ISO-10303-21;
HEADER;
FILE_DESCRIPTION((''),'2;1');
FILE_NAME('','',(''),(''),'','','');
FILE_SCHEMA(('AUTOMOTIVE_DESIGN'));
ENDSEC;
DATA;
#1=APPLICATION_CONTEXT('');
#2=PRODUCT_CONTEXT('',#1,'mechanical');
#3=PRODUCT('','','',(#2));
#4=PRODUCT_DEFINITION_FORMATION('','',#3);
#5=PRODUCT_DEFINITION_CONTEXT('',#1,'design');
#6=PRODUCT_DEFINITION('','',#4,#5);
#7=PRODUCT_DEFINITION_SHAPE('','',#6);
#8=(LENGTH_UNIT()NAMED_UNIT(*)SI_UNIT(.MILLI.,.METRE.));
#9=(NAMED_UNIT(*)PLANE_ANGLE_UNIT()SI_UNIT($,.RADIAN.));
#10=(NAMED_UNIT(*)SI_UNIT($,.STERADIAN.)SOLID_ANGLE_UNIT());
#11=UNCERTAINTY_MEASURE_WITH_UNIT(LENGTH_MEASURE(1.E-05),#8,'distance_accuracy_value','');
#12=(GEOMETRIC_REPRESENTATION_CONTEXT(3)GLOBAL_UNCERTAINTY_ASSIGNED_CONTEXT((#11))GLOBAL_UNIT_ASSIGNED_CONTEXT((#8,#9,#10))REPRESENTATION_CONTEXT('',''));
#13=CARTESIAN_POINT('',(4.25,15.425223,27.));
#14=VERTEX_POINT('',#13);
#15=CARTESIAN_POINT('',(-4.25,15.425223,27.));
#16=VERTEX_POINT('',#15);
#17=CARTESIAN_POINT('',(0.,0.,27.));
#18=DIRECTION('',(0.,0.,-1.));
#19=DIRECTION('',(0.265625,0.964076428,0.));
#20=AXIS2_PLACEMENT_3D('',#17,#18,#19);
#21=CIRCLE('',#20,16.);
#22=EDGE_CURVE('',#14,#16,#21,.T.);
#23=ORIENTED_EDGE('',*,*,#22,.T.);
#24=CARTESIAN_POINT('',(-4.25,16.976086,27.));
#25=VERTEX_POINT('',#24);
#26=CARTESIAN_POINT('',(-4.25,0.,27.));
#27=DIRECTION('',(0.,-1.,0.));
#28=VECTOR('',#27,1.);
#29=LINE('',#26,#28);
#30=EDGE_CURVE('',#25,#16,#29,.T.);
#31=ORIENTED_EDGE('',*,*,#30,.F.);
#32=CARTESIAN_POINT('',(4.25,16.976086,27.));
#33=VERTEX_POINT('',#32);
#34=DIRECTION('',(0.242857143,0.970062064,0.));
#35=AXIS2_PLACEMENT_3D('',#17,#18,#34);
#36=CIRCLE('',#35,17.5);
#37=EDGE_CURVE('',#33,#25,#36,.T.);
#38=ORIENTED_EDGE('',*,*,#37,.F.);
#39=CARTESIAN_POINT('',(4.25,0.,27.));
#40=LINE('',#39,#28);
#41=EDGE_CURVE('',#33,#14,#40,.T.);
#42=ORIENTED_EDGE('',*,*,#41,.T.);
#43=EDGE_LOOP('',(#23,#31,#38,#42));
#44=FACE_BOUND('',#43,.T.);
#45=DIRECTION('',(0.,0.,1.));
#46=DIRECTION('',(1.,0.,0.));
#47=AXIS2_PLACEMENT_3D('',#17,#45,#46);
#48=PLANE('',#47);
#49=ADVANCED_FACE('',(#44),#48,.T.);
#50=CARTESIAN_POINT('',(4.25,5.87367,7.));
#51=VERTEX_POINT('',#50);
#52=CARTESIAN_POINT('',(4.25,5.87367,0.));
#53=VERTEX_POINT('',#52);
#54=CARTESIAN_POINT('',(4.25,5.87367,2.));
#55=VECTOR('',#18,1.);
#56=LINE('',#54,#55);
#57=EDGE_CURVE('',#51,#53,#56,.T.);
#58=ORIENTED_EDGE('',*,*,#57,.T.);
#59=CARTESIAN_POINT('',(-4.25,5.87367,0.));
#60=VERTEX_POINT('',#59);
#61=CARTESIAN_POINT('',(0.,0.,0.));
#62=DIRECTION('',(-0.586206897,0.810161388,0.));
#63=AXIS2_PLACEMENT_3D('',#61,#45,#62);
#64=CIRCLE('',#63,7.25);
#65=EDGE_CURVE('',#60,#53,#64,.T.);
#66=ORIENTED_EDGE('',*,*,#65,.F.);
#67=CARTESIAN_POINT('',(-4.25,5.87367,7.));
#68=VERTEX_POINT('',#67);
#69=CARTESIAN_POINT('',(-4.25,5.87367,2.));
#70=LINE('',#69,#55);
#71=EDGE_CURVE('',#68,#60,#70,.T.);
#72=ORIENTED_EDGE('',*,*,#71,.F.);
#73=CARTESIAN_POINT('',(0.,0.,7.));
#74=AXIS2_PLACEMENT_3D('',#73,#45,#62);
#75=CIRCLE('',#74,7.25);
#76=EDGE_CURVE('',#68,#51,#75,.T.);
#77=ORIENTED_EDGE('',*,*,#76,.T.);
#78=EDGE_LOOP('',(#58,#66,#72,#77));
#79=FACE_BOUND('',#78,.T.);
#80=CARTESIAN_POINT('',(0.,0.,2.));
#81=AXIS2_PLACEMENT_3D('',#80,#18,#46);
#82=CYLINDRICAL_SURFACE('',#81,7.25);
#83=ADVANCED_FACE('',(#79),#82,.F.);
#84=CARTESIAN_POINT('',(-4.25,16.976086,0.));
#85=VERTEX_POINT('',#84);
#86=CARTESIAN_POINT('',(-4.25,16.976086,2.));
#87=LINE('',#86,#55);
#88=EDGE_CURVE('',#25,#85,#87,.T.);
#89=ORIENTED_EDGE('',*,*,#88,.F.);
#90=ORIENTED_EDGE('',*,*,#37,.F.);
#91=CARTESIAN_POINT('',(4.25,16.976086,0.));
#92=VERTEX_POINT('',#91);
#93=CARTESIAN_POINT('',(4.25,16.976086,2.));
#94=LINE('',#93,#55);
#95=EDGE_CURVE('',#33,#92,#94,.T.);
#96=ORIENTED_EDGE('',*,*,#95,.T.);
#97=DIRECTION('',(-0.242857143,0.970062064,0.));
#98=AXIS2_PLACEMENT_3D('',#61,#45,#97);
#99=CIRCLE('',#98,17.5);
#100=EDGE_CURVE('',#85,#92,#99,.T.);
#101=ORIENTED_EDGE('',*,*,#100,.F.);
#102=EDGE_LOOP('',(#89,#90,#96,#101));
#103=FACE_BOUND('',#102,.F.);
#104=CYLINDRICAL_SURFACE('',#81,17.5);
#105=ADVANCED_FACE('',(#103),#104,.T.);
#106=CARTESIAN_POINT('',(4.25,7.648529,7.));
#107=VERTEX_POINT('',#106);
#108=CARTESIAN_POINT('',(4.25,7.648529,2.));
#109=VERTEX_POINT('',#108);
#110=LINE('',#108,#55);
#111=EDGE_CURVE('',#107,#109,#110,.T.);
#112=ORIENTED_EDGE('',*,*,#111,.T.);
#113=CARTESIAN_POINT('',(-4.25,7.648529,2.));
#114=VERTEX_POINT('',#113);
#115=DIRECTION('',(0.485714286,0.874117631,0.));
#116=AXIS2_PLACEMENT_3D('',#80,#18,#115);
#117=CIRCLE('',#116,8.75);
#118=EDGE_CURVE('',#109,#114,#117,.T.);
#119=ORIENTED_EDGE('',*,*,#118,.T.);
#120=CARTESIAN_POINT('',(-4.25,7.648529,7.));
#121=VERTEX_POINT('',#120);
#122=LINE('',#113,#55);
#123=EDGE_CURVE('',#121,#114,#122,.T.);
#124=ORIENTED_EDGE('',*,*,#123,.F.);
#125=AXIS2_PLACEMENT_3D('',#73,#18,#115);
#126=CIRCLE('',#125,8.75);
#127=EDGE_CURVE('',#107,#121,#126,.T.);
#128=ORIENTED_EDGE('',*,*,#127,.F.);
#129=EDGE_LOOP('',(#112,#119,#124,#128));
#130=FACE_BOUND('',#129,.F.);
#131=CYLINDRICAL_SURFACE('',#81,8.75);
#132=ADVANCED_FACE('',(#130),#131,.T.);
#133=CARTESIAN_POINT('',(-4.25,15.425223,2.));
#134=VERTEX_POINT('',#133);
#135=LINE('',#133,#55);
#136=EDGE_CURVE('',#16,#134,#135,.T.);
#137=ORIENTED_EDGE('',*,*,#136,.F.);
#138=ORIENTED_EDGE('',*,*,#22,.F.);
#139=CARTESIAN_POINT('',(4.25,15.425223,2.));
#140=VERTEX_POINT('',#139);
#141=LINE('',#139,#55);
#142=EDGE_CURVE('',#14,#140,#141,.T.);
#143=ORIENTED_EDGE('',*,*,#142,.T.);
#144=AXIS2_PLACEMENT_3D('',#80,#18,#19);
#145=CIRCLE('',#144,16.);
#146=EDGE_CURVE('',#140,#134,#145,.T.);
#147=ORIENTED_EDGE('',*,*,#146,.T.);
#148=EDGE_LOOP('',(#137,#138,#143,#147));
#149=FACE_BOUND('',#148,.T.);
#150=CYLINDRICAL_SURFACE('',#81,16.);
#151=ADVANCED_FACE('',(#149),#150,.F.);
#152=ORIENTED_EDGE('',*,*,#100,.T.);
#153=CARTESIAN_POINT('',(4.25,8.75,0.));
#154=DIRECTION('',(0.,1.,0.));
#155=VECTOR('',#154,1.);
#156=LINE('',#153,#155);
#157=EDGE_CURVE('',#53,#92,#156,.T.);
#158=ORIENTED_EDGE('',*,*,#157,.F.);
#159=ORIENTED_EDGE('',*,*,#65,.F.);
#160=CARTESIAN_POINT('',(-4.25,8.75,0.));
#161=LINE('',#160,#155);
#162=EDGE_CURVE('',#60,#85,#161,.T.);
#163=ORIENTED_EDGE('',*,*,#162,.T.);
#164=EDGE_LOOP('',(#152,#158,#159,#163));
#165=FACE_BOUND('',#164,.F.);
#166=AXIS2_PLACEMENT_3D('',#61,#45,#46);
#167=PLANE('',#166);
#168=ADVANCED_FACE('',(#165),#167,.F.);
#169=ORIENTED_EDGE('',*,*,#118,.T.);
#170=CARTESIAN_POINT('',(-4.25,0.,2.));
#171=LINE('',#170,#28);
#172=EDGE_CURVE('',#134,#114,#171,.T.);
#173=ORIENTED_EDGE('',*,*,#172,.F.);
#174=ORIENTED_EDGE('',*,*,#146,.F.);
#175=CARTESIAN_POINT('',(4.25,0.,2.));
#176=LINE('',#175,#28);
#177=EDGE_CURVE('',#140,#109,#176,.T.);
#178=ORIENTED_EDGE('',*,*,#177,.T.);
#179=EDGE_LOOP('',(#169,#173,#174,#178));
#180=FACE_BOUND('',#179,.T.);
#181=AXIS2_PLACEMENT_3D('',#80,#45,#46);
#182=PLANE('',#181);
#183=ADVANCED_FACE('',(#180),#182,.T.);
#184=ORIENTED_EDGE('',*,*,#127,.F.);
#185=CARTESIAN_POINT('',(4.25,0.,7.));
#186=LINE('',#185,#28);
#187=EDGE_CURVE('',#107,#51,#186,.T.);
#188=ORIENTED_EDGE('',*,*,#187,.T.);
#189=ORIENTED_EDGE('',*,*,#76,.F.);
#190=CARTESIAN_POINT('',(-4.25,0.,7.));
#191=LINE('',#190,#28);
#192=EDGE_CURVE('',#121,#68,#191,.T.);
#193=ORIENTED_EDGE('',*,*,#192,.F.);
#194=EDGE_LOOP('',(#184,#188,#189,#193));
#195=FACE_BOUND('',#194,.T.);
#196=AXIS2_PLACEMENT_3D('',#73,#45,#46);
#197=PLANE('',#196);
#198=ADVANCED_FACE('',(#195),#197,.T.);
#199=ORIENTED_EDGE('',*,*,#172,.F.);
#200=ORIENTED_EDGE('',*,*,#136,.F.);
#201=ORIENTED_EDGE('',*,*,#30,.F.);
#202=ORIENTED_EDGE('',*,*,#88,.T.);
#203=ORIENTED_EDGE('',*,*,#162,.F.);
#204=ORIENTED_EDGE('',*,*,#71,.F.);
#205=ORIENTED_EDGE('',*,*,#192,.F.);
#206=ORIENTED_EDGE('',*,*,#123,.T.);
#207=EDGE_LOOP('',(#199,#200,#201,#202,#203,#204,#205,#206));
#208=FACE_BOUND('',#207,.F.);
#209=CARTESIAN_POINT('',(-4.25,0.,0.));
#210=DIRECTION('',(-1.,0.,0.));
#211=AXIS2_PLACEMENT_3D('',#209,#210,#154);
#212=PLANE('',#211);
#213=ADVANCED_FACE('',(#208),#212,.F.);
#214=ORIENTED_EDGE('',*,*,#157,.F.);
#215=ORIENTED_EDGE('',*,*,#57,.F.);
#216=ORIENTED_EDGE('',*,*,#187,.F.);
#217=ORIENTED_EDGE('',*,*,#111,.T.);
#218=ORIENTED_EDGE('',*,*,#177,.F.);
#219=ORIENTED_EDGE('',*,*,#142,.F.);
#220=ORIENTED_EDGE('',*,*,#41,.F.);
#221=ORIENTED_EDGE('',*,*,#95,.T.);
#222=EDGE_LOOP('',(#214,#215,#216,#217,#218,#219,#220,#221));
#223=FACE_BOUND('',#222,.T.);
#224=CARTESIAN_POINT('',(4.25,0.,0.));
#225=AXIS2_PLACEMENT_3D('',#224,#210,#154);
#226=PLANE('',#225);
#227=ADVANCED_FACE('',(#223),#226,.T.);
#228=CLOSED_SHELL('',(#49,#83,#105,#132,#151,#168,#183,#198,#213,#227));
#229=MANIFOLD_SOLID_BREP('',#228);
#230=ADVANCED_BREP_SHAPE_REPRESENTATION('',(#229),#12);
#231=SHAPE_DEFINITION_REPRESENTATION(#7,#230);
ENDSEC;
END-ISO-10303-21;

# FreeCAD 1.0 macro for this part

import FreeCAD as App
import Part
import Sketcher

doc = App.newDocument("Part")
body = doc.addObject("PartDesign::Body", "Body")

# Sketch on XY plane
sketch1 = doc.addObject("Sketcher::SketchObject", "Sketch")
body.addObject(sketch1)
sketch1.AttachmentSupport = (doc.XY_Plane, [""])
sketch1.MapMode = "FlatFace"
sketch1.addGeometry(Part.Circle(App.Vector(0, 0, 0), App.Vector(0, 0, 1), 17.5), False)
sketch1.addGeometry(Part.Circle(App.Vector(0, 0, 0), App.Vector(0, 0, 1), 7.25), False)
sketch1.addConstraint(Sketcher.Constraint("Coincident", 0, 3, -1, 1))
sketch1.addConstraint(Sketcher.Constraint("Coincident", 1, 3, -1, 1))
sketch1.addConstraint(Sketcher.Constraint("Diameter", 0, 35.0))
sketch1.addConstraint(Sketcher.Constraint("Diameter", 1, 14.5))
pad1 = doc.addObject("PartDesign::Pad", "Pad")
body.addObject(pad1)
pad1.Profile = sketch1
pad1.Length = 2

# Sketch on XY plane
sketch2 = doc.addObject("Sketcher::SketchObject", "Sketch001")
body.addObject(sketch2)
sketch2.AttachmentSupport = (doc.XY_Plane, [""])
sketch2.MapMode = "FlatFace"
sketch2.AttachmentOffset = App.Placement(App.Vector(0, 0, 2), App.Rotation())
sketch2.addGeometry(Part.Circle(App.Vector(0, 0, 0), App.Vector(0, 0, 1), 8.75), False)
sketch2.addGeometry(Part.Circle(App.Vector(0, 0, 0), App.Vector(0, 0, 1), 7.25), False)
sketch2.addConstraint(Sketcher.Constraint("Coincident", 0, 3, -1, 1))
sketch2.addConstraint(Sketcher.Constraint("Coincident", 1, 3, -1, 1))
sketch2.addConstraint(Sketcher.Constraint("Diameter", 0, 17.5))
sketch2.addConstraint(Sketcher.Constraint("Diameter", 1, 14.5))
pad2 = doc.addObject("PartDesign::Pad", "Pad001")
body.addObject(pad2)
pad2.Profile = sketch2
pad2.Length = 5

# Sketch on XY plane
sketch3 = doc.addObject("Sketcher::SketchObject", "Sketch002")
body.addObject(sketch3)
sketch3.AttachmentSupport = (doc.XY_Plane, [""])
sketch3.MapMode = "FlatFace"
sketch3.AttachmentOffset = App.Placement(App.Vector(0, 0, 2), App.Rotation())
sketch3.addGeometry(Part.Circle(App.Vector(0, 0, 0), App.Vector(0, 0, 1), 17.5), False)
sketch3.addGeometry(Part.Circle(App.Vector(0, 0, 0), App.Vector(0, 0, 1), 16), False)
sketch3.addConstraint(Sketcher.Constraint("Coincident", 0, 3, -1, 1))
sketch3.addConstraint(Sketcher.Constraint("Coincident", 1, 3, -1, 1))
sketch3.addConstraint(Sketcher.Constraint("Diameter", 0, 35.0))
sketch3.addConstraint(Sketcher.Constraint("Diameter", 1, 32.0))
pad3 = doc.addObject("PartDesign::Pad", "Pad002")
body.addObject(pad3)
pad3.Profile = sketch3
pad3.Length = 25

# Sketch on XY plane
sketch4 = doc.addObject("Sketcher::SketchObject", "Sketch003")
body.addObject(sketch4)
sketch4.AttachmentSupport = (doc.XY_Plane, [""])
sketch4.MapMode = "FlatFace"
sketch4.addGeometry(Part.LineSegment(App.Vector(-4.25, 17.5, 0), App.Vector(-4.25, 0, 0)), False)
sketch4.addGeometry(Part.LineSegment(App.Vector(-4.25, 0, 0), App.Vector(4.25, 0, 0)), False)
sketch4.addGeometry(Part.LineSegment(App.Vector(4.25, 0, 0), App.Vector(4.25, 17.5, 0)), False)
sketch4.addGeometry(Part.LineSegment(App.Vector(4.25, 17.5, 0), App.Vector(-4.25, 17.5, 0)), False)
sketch4.addConstraint(Sketcher.Constraint("Coincident", 0, 2, 1, 1))
sketch4.addConstraint(Sketcher.Constraint("Coincident", 1, 2, 2, 1))
sketch4.addConstraint(Sketcher.Constraint("Coincident", 2, 2, 3, 1))
sketch4.addConstraint(Sketcher.Constraint("Coincident", 3, 2, 0, 1))
sketch4.addConstraint(Sketcher.Constraint("Vertical", 0))
sketch4.addConstraint(Sketcher.Constraint("Horizontal", 1))
sketch4.addConstraint(Sketcher.Constraint("Vertical", 2))
sketch4.addConstraint(Sketcher.Constraint("Horizontal", 3))
sketch4.addConstraint(Sketcher.Constraint("Symmetric", 0, 2, 1, 2, -1, 1))
sketch4.addConstraint(Sketcher.Constraint("DistanceX", 1, 1, 1, 2, 8.5))
sketch4.addConstraint(Sketcher.Constraint("DistanceY", 0, 2, 0, 1, 17.5))
pocket1 = doc.addObject("PartDesign::Pocket", "Pocket")
body.addObject(pocket1)
pocket1.Profile = sketch4
pocket1.Type = "ThroughAll"
pocket1.Reversed = True

doc.recompute()
